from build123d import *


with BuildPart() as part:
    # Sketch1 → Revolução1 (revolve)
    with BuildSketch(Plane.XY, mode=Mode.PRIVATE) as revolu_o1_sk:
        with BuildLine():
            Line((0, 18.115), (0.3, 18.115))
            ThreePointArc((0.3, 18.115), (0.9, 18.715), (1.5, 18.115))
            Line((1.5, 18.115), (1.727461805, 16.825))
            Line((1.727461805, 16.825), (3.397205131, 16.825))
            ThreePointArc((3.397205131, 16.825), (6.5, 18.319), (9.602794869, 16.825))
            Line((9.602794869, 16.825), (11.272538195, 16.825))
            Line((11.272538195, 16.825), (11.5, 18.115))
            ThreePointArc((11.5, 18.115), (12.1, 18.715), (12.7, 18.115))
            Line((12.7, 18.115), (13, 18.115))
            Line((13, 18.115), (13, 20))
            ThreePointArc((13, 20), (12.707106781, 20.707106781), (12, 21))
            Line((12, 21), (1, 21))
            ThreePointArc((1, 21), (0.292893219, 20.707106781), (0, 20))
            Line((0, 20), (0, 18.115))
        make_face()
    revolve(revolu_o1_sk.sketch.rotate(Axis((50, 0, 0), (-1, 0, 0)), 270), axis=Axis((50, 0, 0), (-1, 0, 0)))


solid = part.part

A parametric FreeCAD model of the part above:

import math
import FreeCAD as App
import Part
import Sketcher
from FreeCAD import Vector
Q = App.Units.Quantity

doc = App.newDocument("Part")
params = doc.addObject("Spreadsheet::Sheet", "Params")
for row, (alias, value) in enumerate([
    ("sketch1_radius", "1 mm"),
    ("sketch1_radius2", "0.6 mm"),
    ("sketch1_width", "11 mm"),
    ("sketch1_width2", "0.3 mm"),
    ("revolution_angle", "360 deg"),
], start=1):
    params.set(f"A{row}", alias)
    params.set(f"B{row}", "=" + value)
    params.setAlias(f"B{row}", alias)

body = doc.addObject("PartDesign::Body", "Body")

sketch1 = body.newObject("Sketcher::SketchObject", "Sketch")
sketch1.AttachmentSupport = (doc.getObject("XY_Plane"), [""])
sketch1.MapMode = "FlatFace"
sketch1.addGeometry([
    Part.LineSegment(Vector(0, 18.11, 0), Vector(0.3, 18.11, 0)),
    Part.ArcOfCircle(Part.Circle(Vector(0.9, 18.11, 0), Vector(0, 0, 1), 0.6), math.radians(0), math.radians(180)),
    Part.LineSegment(Vector(1.5, 18.11, 0), Vector(1.73, 16.82, 0)),
    Part.LineSegment(Vector(1.73, 16.82, 0), Vector(3.4, 16.82, 0)),
    Part.ArcOfCircle(Part.Circle(Vector(6.5, 14.35, 0), Vector(0, 0, 1), 3.97), math.radians(39), math.radians(141)),
    Part.LineSegment(Vector(9.6, 16.82, 0), Vector(11.27, 16.82, 0)),
    Part.LineSegment(Vector(11.27, 16.82, 0), Vector(11.5, 18.11, 0)),
    Part.ArcOfCircle(Part.Circle(Vector(12.1, 18.11, 0), Vector(0, 0, 1), 0.6), math.radians(0), math.radians(180)),
    Part.LineSegment(Vector(12.7, 18.11, 0), Vector(13, 18.11, 0)),
    Part.LineSegment(Vector(13, 18.11, 0), Vector(13, 20, 0)),
    Part.ArcOfCircle(Part.Circle(Vector(12, 20, 0), Vector(0, 0, 1), 1), math.radians(0), math.radians(90)),
    Part.LineSegment(Vector(12, 21, 0), Vector(1, 21, 0)),
    Part.ArcOfCircle(Part.Circle(Vector(1, 20, 0), Vector(0, 0, 1), 1), math.radians(90), math.radians(180)),
    Part.LineSegment(Vector(0, 20, 0), Vector(0, 18.11, 0)),
], False)
sketch1.addConstraint([
    Sketcher.Constraint("Coincident", 0, 2, 1, 2),
    Sketcher.Constraint("Coincident", 1, 1, 2, 1),
    Sketcher.Constraint("Coincident", 2, 2, 3, 1),
    Sketcher.Constraint("Coincident", 3, 2, 4, 2),
    Sketcher.Constraint("Coincident", 4, 1, 5, 1),
    Sketcher.Constraint("Coincident", 5, 2, 6, 1),
    Sketcher.Constraint("Coincident", 6, 2, 7, 2),
    Sketcher.Constraint("Coincident", 7, 1, 8, 1),
    Sketcher.Constraint("Coincident", 8, 2, 9, 1),
    Sketcher.Constraint("Tangent", 9, 2, 10, 1),
    Sketcher.Constraint("Tangent", 10, 2, 11, 1),
    Sketcher.Constraint("Tangent", 11, 2, 12, 1),
    Sketcher.Constraint("Tangent", 12, 2, 13, 1),
    Sketcher.Constraint("Coincident", 13, 2, 0, 1),
    Sketcher.Constraint("Horizontal", 0),
    Sketcher.Constraint("Horizontal", 3),
    Sketcher.Constraint("Horizontal", 5),
    Sketcher.Constraint("Horizontal", 8),
    Sketcher.Constraint("Vertical", 9),
    Sketcher.Constraint("Horizontal", 11),
    Sketcher.Constraint("Vertical", 13),
    Sketcher.Constraint("Equal", 1, 7),
    Sketcher.Constraint("Equal", 10, 12),
    Sketcher.Constraint("PointOnObject", 12, 2, -2),
    Sketcher.Constraint("Horizontal", 1, 3, 7, 3),
    Sketcher.Constraint("Horizontal", 7, 3, 0, 2),
    Sketcher.Constraint("Horizontal", 0, 2, 1, 1),
    Sketcher.Constraint("Horizontal", 3, 2, 4, 1),
    Sketcher.Constraint("Horizontal", 1, 1, 6, 2),
    Sketcher.Constraint("Horizontal", 6, 2, 7, 1),
    Sketcher.Constraint("Equal", 3, 5),
    Sketcher.Constraint("Equal", 0, 8),
    Sketcher.Constraint("Equal", 2, 6),
    Sketcher.Constraint("Radius", 10, 1.0),
    Sketcher.Constraint("Radius", 1, 0.6),
    Sketcher.Constraint("DistanceX", 11, 2, 11, 1, 11.0),
    Sketcher.Constraint("Angle", 2, Q("-80 deg")),
    Sketcher.Constraint("DistanceX", 0, 1, 0, 2, 0.3),
    Sketcher.Constraint("DistanceY", -1, 1, 10, 3, 20.0),
    Sketcher.Constraint("Radius", 4, 3.969),
    Sketcher.Constraint("DistanceY", 9, 1, 9, 2, 1.885),
    Sketcher.Constraint("DistanceY", -1, 1, 4, 3, 14.35),
    Sketcher.Constraint("DistanceY", 2, 2, 1, 1, 1.29),
])
sketch1.setExpression("Constraints[33]", "Params.sketch1_radius")
sketch1.setExpression("Constraints[34]", "Params.sketch1_radius2")
sketch1.setExpression("Constraints[35]", "Params.sketch1_width")
sketch1.setExpression("Constraints[37]", "Params.sketch1_width2")
revolution = body.newObject("PartDesign::Revolution", "Revolution")
revolution.Profile = sketch1
revolution.ReferenceAxis = (sketch1, ["H_Axis"])
revolution.setExpression("Angle", "Params.revolution_angle")

doc.recompute()
